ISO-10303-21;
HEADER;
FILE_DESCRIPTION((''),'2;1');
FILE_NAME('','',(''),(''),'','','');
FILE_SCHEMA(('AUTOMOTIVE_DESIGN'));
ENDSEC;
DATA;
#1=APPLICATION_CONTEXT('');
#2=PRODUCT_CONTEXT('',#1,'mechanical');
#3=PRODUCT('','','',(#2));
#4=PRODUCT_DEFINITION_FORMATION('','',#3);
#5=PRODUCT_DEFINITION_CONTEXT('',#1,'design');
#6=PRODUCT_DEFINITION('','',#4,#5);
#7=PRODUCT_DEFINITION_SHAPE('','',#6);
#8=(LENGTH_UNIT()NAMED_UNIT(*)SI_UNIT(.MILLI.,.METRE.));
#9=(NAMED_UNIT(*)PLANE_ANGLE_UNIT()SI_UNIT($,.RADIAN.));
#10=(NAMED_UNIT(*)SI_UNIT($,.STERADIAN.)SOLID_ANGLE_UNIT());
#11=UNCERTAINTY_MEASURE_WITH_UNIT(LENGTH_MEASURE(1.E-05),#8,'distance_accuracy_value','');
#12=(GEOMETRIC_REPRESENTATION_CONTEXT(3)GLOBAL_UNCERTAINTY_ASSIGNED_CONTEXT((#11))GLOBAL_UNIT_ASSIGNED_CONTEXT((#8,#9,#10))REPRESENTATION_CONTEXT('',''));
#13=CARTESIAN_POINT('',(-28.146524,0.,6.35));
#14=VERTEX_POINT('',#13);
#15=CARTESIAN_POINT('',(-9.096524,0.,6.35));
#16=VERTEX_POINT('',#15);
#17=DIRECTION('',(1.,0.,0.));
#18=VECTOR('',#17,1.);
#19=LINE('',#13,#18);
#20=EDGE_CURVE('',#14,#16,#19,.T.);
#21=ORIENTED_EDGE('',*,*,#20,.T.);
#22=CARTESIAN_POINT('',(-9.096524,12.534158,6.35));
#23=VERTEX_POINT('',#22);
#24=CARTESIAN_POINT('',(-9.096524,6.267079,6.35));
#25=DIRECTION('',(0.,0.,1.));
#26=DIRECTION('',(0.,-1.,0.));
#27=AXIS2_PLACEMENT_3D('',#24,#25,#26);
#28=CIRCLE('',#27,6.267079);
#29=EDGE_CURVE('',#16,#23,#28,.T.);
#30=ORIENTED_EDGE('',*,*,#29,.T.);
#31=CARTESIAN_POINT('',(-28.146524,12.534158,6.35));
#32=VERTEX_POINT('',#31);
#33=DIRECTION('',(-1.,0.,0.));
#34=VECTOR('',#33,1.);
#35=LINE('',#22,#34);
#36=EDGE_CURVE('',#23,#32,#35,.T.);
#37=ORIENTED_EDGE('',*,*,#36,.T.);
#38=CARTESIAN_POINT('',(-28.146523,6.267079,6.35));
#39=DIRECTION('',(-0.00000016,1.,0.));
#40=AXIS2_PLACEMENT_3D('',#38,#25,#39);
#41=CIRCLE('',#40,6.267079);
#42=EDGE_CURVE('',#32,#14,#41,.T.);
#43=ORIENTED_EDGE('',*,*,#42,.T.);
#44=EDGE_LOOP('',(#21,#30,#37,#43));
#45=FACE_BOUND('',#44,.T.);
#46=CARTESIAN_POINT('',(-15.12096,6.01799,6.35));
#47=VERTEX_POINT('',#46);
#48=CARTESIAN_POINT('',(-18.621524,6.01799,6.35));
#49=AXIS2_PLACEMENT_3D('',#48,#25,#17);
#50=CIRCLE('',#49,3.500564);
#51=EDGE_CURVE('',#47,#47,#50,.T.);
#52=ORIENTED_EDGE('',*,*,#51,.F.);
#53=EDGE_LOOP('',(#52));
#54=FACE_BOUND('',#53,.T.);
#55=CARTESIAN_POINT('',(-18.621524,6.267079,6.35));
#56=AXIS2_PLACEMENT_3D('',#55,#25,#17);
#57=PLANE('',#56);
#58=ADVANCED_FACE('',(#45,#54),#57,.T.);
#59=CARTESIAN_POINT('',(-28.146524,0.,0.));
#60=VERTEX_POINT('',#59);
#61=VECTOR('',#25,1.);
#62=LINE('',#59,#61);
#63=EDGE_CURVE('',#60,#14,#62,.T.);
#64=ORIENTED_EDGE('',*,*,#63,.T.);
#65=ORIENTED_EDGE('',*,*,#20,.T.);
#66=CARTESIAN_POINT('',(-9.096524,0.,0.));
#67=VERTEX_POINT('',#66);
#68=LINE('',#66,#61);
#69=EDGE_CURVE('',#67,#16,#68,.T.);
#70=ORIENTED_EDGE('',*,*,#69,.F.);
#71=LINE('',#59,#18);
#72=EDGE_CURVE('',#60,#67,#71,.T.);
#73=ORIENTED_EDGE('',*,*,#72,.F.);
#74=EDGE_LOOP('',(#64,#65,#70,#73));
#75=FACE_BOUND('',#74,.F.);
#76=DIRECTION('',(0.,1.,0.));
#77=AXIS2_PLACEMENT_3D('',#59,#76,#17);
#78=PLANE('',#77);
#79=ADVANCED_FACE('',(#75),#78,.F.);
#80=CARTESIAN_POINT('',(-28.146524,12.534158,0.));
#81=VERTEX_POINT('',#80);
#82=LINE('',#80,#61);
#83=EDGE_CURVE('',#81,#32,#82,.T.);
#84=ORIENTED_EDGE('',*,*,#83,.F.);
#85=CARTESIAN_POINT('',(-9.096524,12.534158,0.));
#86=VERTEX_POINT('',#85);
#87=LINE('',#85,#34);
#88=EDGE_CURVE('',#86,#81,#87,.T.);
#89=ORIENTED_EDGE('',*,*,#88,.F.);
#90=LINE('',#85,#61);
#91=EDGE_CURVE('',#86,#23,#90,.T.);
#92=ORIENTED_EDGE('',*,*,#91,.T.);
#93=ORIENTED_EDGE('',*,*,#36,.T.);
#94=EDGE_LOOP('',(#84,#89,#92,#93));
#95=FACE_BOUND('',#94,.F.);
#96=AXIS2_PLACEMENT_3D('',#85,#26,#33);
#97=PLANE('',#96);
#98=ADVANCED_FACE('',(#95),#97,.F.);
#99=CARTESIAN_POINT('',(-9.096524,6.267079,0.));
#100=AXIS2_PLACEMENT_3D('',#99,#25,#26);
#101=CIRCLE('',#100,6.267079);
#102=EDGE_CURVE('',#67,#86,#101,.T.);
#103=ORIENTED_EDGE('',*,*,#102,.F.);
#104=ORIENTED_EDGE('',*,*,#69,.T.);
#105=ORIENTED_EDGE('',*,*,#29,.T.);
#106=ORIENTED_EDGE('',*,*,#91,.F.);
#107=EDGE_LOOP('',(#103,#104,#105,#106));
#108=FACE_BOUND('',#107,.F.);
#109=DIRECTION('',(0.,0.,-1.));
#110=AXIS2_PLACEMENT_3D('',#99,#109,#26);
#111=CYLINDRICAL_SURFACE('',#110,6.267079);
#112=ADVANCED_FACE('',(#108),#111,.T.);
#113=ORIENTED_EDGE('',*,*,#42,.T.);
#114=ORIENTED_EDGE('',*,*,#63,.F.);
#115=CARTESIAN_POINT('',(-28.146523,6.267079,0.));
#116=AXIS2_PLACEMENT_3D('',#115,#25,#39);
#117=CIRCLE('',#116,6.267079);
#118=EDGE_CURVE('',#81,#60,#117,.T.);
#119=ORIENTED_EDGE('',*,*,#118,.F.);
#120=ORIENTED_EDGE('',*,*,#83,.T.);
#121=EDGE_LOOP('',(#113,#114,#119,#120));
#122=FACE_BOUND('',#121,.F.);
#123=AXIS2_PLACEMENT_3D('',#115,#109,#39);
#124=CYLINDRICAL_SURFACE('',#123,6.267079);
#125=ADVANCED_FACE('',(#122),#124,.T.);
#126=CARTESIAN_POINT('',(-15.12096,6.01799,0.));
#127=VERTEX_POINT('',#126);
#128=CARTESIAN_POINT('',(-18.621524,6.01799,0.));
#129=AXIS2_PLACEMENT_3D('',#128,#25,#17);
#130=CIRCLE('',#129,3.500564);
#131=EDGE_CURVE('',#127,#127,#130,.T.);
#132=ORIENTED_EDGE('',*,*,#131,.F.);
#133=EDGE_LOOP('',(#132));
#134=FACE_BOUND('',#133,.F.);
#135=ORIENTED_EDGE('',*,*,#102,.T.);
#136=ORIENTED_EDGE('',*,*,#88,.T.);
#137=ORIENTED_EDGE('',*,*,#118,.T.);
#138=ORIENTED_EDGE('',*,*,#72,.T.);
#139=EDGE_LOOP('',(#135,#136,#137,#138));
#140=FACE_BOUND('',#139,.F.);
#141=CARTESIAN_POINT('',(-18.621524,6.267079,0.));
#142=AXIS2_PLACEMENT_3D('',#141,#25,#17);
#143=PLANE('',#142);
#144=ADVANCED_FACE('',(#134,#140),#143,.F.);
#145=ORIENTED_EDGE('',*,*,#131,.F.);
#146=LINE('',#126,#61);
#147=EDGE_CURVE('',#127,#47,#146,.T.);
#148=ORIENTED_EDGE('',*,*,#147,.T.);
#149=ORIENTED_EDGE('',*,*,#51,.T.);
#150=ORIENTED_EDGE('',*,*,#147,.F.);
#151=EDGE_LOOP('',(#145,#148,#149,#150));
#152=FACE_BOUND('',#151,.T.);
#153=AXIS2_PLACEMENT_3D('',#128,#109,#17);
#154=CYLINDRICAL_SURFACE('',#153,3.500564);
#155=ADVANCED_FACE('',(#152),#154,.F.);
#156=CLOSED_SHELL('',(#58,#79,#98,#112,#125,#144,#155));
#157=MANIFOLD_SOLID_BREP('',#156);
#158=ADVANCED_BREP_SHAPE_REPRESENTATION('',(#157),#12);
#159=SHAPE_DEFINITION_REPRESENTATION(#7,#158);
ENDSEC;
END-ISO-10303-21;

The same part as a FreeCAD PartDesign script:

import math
import FreeCAD as App
import Part
import Sketcher
Q = App.Units.Quantity

doc = App.newDocument("Part")
body = doc.addObject("PartDesign::Body", "Body")

# Sketch on XY plane
sketch1 = doc.addObject("Sketcher::SketchObject", "Sketch")
body.addObject(sketch1)
sketch1.AttachmentSupport = (doc.XY_Plane, [""])
sketch1.MapMode = "FlatFace"
sketch1.addGeometry([
    Part.LineSegment(App.Vector(-9.1, 12.5, 0), App.Vector(-28.1, 12.5, 0)),  # 0
    Part.ArcOfCircle(Part.Circle(App.Vector(-28.1, 6.3, 0), App.Vector(0, 0, 1), 6.3), math.radians(90), math.radians(270)),  # 1
    Part.LineSegment(App.Vector(-28.1, 0, 0), App.Vector(-9.1, 0, 0)),  # 2
    Part.ArcOfCircle(Part.Circle(App.Vector(-9.1, 6.3, 0), App.Vector(0, 0, 1), 6.3), math.radians(-90), math.radians(90)),  # 3
    Part.Circle(App.Vector(-18.6, 6, 0), App.Vector(0, 0, 1), 3.5),  # 4
], False)
sketch1.addConstraint([
    Sketcher.Constraint("Tangent", 0, 2, 1, 1),
    Sketcher.Constraint("Tangent", 1, 2, 2, 1),
    Sketcher.Constraint("Tangent", 2, 2, 3, 1),
    Sketcher.Constraint("Tangent", 3, 2, 0, 1),
    Sketcher.Constraint("Horizontal", 0),
    Sketcher.Constraint("Horizontal", 2),
    Sketcher.Constraint("PointOnObject", 1, 2, -1),
    Sketcher.Constraint("DistanceX", 0, 2, 0, 1, Q("0.75 in")),
    Sketcher.Constraint("Radius", 1, 6.267079),
    Sketcher.Constraint("DistanceX", 1, 3, 4, 3, Q("0.375 in")),
    Sketcher.Constraint("Diameter", 4, 7.001128),
    Sketcher.Constraint("DistanceY", -1, 1, 4, 3, 6.01799),
    Sketcher.Constraint("DistanceX", 1, 3, -1, 1, 28.146523),
])
pad1 = doc.addObject("PartDesign::Pad", "Pad")
body.addObject(pad1)
pad1.Profile = sketch1
pad1.Length = Q("0.25 in")

doc.recompute()
